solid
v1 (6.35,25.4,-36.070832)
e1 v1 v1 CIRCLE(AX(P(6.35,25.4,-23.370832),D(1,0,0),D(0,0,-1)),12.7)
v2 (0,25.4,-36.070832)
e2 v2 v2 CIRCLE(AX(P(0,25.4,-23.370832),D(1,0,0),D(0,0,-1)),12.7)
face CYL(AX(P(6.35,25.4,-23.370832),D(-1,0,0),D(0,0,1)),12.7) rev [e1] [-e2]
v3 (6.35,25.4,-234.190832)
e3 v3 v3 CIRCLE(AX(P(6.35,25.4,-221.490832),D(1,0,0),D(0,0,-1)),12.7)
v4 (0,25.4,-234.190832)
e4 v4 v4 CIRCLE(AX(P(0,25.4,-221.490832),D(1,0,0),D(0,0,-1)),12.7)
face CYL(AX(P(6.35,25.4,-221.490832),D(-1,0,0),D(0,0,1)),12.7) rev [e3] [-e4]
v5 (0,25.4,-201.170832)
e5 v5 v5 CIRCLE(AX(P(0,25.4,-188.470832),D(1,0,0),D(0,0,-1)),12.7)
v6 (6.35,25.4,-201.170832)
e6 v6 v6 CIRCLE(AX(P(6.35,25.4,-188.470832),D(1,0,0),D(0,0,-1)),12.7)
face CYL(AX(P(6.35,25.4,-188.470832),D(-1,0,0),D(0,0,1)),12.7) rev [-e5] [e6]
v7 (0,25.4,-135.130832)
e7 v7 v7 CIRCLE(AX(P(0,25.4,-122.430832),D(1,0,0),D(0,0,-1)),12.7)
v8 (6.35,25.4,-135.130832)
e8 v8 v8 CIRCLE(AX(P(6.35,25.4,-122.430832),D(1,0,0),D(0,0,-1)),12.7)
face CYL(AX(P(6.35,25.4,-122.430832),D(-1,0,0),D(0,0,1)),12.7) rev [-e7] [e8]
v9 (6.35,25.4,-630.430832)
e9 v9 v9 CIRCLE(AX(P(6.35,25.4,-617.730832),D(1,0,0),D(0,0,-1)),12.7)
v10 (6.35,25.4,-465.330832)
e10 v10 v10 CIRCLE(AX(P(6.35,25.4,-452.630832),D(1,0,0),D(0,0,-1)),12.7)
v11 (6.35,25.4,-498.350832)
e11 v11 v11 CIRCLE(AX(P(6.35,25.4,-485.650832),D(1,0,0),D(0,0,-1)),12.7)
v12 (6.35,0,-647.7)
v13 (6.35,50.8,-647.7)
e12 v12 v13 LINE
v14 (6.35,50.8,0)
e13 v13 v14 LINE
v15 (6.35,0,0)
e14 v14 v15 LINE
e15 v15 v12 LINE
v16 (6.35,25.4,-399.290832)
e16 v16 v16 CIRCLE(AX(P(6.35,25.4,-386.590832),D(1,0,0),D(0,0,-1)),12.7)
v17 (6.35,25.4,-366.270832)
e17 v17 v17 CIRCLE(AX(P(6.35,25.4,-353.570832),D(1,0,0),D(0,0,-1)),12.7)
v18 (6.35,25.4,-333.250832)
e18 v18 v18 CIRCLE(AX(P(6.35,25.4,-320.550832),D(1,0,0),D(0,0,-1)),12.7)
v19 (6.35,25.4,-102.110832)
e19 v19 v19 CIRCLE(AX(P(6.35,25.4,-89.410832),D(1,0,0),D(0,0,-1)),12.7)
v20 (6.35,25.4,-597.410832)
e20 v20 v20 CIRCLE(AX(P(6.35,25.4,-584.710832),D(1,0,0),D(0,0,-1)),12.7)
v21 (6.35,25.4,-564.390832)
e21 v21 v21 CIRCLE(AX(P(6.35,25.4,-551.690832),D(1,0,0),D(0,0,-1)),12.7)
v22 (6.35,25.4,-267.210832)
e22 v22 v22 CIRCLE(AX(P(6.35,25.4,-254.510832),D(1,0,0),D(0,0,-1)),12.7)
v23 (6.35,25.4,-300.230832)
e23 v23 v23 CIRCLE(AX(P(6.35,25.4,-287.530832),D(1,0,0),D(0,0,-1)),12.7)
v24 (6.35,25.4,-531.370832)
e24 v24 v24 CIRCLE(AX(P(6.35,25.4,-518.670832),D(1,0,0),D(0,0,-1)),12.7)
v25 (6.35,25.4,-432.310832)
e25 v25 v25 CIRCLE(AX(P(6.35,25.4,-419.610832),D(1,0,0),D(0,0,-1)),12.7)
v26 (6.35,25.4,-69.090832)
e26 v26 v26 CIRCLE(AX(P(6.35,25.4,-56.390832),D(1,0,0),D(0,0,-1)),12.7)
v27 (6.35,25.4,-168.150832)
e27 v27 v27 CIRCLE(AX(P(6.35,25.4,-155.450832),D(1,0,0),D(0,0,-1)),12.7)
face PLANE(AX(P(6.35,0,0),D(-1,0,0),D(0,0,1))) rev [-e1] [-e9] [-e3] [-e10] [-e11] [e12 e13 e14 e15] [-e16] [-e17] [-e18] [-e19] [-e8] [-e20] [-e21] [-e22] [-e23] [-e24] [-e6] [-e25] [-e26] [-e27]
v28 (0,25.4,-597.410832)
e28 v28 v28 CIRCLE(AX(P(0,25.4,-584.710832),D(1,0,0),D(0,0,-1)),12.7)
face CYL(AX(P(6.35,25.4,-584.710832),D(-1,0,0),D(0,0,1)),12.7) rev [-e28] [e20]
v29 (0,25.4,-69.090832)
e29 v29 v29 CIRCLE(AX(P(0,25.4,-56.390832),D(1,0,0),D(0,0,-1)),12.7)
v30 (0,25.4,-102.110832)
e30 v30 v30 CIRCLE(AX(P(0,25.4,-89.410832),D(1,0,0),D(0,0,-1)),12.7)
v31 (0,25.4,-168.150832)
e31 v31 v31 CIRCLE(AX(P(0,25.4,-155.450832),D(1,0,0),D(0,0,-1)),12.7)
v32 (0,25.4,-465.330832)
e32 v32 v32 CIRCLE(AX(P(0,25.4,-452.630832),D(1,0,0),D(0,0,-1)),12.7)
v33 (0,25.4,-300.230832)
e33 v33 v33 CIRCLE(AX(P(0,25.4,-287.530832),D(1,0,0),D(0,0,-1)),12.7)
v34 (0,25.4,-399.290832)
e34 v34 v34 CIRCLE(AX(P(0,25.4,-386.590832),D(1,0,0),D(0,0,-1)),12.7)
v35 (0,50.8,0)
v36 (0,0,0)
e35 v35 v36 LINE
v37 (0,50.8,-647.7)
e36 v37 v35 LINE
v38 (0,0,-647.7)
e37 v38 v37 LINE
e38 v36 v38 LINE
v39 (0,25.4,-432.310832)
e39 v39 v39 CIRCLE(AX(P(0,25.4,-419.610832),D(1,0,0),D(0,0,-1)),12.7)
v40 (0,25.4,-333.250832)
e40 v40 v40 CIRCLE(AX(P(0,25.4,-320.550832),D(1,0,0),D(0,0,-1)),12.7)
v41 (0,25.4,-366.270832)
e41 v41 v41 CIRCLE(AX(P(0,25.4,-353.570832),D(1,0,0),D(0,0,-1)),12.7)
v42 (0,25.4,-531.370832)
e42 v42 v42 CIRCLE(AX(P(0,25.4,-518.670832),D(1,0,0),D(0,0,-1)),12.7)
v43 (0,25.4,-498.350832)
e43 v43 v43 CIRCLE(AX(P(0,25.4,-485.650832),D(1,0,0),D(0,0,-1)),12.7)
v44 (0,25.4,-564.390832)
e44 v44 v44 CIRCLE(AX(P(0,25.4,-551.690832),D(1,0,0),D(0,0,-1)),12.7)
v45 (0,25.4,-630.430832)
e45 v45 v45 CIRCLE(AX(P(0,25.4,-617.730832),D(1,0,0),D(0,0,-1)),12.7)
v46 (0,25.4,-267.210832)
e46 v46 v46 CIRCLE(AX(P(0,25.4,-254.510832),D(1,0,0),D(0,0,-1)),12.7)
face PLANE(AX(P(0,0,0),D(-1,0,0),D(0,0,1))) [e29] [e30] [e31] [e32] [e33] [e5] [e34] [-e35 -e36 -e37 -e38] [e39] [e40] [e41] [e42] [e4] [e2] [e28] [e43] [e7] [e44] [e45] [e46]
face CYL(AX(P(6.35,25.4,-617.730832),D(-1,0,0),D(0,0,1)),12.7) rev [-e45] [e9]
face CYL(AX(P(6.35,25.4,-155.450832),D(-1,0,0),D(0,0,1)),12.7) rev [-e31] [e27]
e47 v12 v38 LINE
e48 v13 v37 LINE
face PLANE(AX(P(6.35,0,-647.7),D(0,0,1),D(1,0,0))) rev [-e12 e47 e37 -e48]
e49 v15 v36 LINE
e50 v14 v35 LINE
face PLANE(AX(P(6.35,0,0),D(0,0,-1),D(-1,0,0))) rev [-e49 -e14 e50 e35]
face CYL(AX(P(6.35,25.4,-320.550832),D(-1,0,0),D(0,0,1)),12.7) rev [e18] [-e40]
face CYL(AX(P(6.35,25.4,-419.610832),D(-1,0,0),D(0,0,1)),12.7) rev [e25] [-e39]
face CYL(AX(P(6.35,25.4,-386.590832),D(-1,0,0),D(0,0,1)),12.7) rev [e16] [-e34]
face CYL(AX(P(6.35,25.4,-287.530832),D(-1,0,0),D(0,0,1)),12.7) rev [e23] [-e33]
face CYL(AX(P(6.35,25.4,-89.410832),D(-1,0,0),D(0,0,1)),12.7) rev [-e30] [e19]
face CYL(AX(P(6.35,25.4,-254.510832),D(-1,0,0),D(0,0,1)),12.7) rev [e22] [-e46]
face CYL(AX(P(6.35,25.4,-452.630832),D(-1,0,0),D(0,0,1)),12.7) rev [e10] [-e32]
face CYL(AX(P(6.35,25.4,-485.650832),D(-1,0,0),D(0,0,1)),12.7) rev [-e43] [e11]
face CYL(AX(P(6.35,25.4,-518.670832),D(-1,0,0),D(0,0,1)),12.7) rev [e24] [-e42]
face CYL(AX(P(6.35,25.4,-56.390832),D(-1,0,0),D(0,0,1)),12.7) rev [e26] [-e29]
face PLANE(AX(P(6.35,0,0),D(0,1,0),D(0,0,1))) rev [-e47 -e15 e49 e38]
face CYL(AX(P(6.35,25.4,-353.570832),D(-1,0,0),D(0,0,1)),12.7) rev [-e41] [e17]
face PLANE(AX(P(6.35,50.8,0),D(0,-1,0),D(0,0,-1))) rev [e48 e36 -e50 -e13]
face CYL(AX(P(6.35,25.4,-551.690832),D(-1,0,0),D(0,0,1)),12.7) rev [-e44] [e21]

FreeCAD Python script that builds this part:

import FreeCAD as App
import Part
import Sketcher
Q = App.Units.Quantity

doc = App.newDocument("Part")
body = doc.addObject("PartDesign::Body", "Body")

# Sketch on YZ plane
sketch1 = body.newObject("Sketcher::SketchObject", "Sketch")
sketch1.AttachmentSupport = (doc.getObject("YZ_Plane"), [""])
sketch1.MapMode = "FlatFace"
sketch1.addGeometry(Part.LineSegment(App.Vector(51, 0, 0), App.Vector(0, 0, 0)), False)
sketch1.addGeometry(Part.LineSegment(App.Vector(0, 0, 0), App.Vector(0, -648, 0)), False)
sketch1.addGeometry(Part.LineSegment(App.Vector(0, -648, 0), App.Vector(51, -648, 0)), False)
sketch1.addGeometry(Part.LineSegment(App.Vector(51, -648, 0), App.Vector(51, 0, 0)), False)
sketch1.addGeometry(Part.Circle(App.Vector(25, -23, 0), App.Vector(0, 0, 1), 13), False)
sketch1.addGeometry(Part.Circle(App.Vector(25, -56, 0), App.Vector(0, 0, 1), 13), False)
sketch1.addGeometry(Part.Circle(App.Vector(25, -89, 0), App.Vector(0, 0, 1), 13), False)
sketch1.addGeometry(Part.Circle(App.Vector(25, -122, 0), App.Vector(0, 0, 1), 13), False)
sketch1.addGeometry(Part.Circle(App.Vector(25, -155, 0), App.Vector(0, 0, 1), 13), False)
sketch1.addGeometry(Part.Circle(App.Vector(25, -188, 0), App.Vector(0, 0, 1), 13), False)
sketch1.addGeometry(Part.Circle(App.Vector(25, -221, 0), App.Vector(0, 0, 1), 13), False)
sketch1.addGeometry(Part.Circle(App.Vector(25, -255, 0), App.Vector(0, 0, 1), 13), False)
sketch1.addGeometry(Part.Circle(App.Vector(25, -288, 0), App.Vector(0, 0, 1), 13), False)
sketch1.addGeometry(Part.Circle(App.Vector(25, -321, 0), App.Vector(0, 0, 1), 13), False)
sketch1.addGeometry(Part.Circle(App.Vector(25, -354, 0), App.Vector(0, 0, 1), 13), False)
sketch1.addGeometry(Part.Circle(App.Vector(25, -387, 0), App.Vector(0, 0, 1), 13), False)
sketch1.addGeometry(Part.Circle(App.Vector(25, -420, 0), App.Vector(0, 0, 1), 13), False)
sketch1.addGeometry(Part.Circle(App.Vector(25, -453, 0), App.Vector(0, 0, 1), 13), False)
sketch1.addGeometry(Part.Circle(App.Vector(25, -486, 0), App.Vector(0, 0, 1), 13), False)
sketch1.addGeometry(Part.Circle(App.Vector(25, -519, 0), App.Vector(0, 0, 1), 13), False)
sketch1.addGeometry(Part.Circle(App.Vector(25, -552, 0), App.Vector(0, 0, 1), 13), False)
sketch1.addGeometry(Part.Circle(App.Vector(25, -585, 0), App.Vector(0, 0, 1), 13), False)
sketch1.addGeometry(Part.Circle(App.Vector(25, -618, 0), App.Vector(0, 0, 1), 13), False)
sketch1.addConstraint(Sketcher.Constraint("Coincident", 0, 2, 1, 1))
sketch1.addConstraint(Sketcher.Constraint("Coincident", 1, 2, 2, 1))
sketch1.addConstraint(Sketcher.Constraint("Coincident", 2, 2, 3, 1))
sketch1.addConstraint(Sketcher.Constraint("Coincident", 3, 2, 0, 1))
sketch1.addConstraint(Sketcher.Constraint("Horizontal", 0))
sketch1.addConstraint(Sketcher.Constraint("Vertical", 1))
sketch1.addConstraint(Sketcher.Constraint("Horizontal", 2))
sketch1.addConstraint(Sketcher.Constraint("Vertical", 3))
sketch1.addConstraint(Sketcher.Constraint("Coincident", 0, 2, -1, 1))
sketch1.addConstraint(Sketcher.Constraint("Equal", 4, 5))
sketch1.addConstraint(Sketcher.Constraint("Equal", 5, 6))
sketch1.addConstraint(Sketcher.Constraint("Equal", 6, 7))
sketch1.addConstraint(Sketcher.Constraint("Equal", 7, 8))
sketch1.addConstraint(Sketcher.Constraint("Equal", 8, 9))
sketch1.addConstraint(Sketcher.Constraint("Equal", 9, 10))
sketch1.addConstraint(Sketcher.Constraint("Equal", 10, 11))
sketch1.addConstraint(Sketcher.Constraint("Equal", 11, 12))
sketch1.addConstraint(Sketcher.Constraint("Equal", 12, 13))
sketch1.addConstraint(Sketcher.Constraint("Equal", 13, 14))
sketch1.addConstraint(Sketcher.Constraint("Equal", 14, 15))
sketch1.addConstraint(Sketcher.Constraint("Equal", 15, 16))
sketch1.addConstraint(Sketcher.Constraint("Equal", 16, 17))
sketch1.addConstraint(Sketcher.Constraint("Equal", 17, 18))
sketch1.addConstraint(Sketcher.Constraint("Equal", 18, 19))
sketch1.addConstraint(Sketcher.Constraint("Equal", 19, 20))
sketch1.addConstraint(Sketcher.Constraint("Equal", 20, 21))
sketch1.addConstraint(Sketcher.Constraint("Equal", 21, 22))
sketch1.addConstraint(Sketcher.Constraint("Vertical", 4, 3, 5, 3))
sketch1.addConstraint(Sketcher.Constraint("Vertical", 5, 3, 6, 3))
sketch1.addConstraint(Sketcher.Constraint("Vertical", 6, 3, 7, 3))
sketch1.addConstraint(Sketcher.Constraint("Vertical", 7, 3, 8, 3))
sketch1.addConstraint(Sketcher.Constraint("Vertical", 8, 3, 9, 3))
sketch1.addConstraint(Sketcher.Constraint("Vertical", 9, 3, 10, 3))
sketch1.addConstraint(Sketcher.Constraint("Vertical", 10, 3, 11, 3))
sketch1.addConstraint(Sketcher.Constraint("Vertical", 11, 3, 12, 3))
sketch1.addConstraint(Sketcher.Constraint("Vertical", 12, 3, 13, 3))
sketch1.addConstraint(Sketcher.Constraint("Vertical", 13, 3, 14, 3))
sketch1.addConstraint(Sketcher.Constraint("Vertical", 14, 3, 15, 3))
sketch1.addConstraint(Sketcher.Constraint("Vertical", 15, 3, 16, 3))
sketch1.addConstraint(Sketcher.Constraint("Vertical", 16, 3, 17, 3))
sketch1.addConstraint(Sketcher.Constraint("Vertical", 17, 3, 18, 3))
sketch1.addConstraint(Sketcher.Constraint("Vertical", 18, 3, 19, 3))
sketch1.addConstraint(Sketcher.Constraint("Vertical", 19, 3, 20, 3))
sketch1.addConstraint(Sketcher.Constraint("Vertical", 20, 3, 21, 3))
sketch1.addConstraint(Sketcher.Constraint("Vertical", 21, 3, 22, 3))
sketch1.addConstraint(Sketcher.Constraint("Diameter", 4, Q("1 in")))
sketch1.addConstraint(Sketcher.Constraint("DistanceX", 0, 2, 0, 1, Q("2 in")))
sketch1.addConstraint(Sketcher.Constraint("DistanceY", 1, 2, 1, 1, Q("25.5 in")))
sketch1.addConstraint(Sketcher.Constraint("DistanceX", -1, 1, 4, 3, Q("1 in")))
sketch1.addConstraint(Sketcher.Constraint("DistanceY", 5, 3, 4, 3, Q("1.3 in")))
sketch1.addConstraint(Sketcher.Constraint("DistanceY", 6, 3, 5, 3, Q("1.3 in")))
sketch1.addConstraint(Sketcher.Constraint("DistanceY", 7, 3, 6, 3, Q("1.3 in")))
sketch1.addConstraint(Sketcher.Constraint("DistanceY", 8, 3, 7, 3, Q("1.3 in")))
sketch1.addConstraint(Sketcher.Constraint("DistanceY", 9, 3, 8, 3, Q("1.3 in")))
sketch1.addConstraint(Sketcher.Constraint("DistanceY", 10, 3, 9, 3, Q("1.3 in")))
sketch1.addConstraint(Sketcher.Constraint("DistanceY", 11, 3, 10, 3, Q("1.3 in")))
sketch1.addConstraint(Sketcher.Constraint("DistanceY", 12, 3, 11, 3, Q("1.3 in")))
sketch1.addConstraint(Sketcher.Constraint("DistanceY", 13, 3, 12, 3, Q("1.3 in")))
sketch1.addConstraint(Sketcher.Constraint("DistanceY", 14, 3, 13, 3, Q("1.3 in")))
sketch1.addConstraint(Sketcher.Constraint("DistanceY", 15, 3, 14, 3, Q("1.3 in")))
sketch1.addConstraint(Sketcher.Constraint("DistanceY", 16, 3, 15, 3, Q("1.3 in")))
sketch1.addConstraint(Sketcher.Constraint("DistanceY", 17, 3, 16, 3, Q("1.3 in")))
sketch1.addConstraint(Sketcher.Constraint("DistanceY", 18, 3, 17, 3, Q("1.3 in")))
sketch1.addConstraint(Sketcher.Constraint("DistanceY", 19, 3, 18, 3, Q("1.3 in")))
sketch1.addConstraint(Sketcher.Constraint("DistanceY", 20, 3, 19, 3, Q("1.3 in")))
sketch1.addConstraint(Sketcher.Constraint("DistanceY", 21, 3, 20, 3, Q("1.3 in")))
sketch1.addConstraint(Sketcher.Constraint("DistanceY", 22, 3, 21, 3, Q("1.3 in")))
sketch1.addConstraint(Sketcher.Constraint("DistanceY", 4, 3, -1, 1, 23.370832))
pad1 = body.newObject("PartDesign::Pad", "Pad")
pad1.Profile = sketch1
pad1.Length = Q("0.25 in")

doc.recompute()
